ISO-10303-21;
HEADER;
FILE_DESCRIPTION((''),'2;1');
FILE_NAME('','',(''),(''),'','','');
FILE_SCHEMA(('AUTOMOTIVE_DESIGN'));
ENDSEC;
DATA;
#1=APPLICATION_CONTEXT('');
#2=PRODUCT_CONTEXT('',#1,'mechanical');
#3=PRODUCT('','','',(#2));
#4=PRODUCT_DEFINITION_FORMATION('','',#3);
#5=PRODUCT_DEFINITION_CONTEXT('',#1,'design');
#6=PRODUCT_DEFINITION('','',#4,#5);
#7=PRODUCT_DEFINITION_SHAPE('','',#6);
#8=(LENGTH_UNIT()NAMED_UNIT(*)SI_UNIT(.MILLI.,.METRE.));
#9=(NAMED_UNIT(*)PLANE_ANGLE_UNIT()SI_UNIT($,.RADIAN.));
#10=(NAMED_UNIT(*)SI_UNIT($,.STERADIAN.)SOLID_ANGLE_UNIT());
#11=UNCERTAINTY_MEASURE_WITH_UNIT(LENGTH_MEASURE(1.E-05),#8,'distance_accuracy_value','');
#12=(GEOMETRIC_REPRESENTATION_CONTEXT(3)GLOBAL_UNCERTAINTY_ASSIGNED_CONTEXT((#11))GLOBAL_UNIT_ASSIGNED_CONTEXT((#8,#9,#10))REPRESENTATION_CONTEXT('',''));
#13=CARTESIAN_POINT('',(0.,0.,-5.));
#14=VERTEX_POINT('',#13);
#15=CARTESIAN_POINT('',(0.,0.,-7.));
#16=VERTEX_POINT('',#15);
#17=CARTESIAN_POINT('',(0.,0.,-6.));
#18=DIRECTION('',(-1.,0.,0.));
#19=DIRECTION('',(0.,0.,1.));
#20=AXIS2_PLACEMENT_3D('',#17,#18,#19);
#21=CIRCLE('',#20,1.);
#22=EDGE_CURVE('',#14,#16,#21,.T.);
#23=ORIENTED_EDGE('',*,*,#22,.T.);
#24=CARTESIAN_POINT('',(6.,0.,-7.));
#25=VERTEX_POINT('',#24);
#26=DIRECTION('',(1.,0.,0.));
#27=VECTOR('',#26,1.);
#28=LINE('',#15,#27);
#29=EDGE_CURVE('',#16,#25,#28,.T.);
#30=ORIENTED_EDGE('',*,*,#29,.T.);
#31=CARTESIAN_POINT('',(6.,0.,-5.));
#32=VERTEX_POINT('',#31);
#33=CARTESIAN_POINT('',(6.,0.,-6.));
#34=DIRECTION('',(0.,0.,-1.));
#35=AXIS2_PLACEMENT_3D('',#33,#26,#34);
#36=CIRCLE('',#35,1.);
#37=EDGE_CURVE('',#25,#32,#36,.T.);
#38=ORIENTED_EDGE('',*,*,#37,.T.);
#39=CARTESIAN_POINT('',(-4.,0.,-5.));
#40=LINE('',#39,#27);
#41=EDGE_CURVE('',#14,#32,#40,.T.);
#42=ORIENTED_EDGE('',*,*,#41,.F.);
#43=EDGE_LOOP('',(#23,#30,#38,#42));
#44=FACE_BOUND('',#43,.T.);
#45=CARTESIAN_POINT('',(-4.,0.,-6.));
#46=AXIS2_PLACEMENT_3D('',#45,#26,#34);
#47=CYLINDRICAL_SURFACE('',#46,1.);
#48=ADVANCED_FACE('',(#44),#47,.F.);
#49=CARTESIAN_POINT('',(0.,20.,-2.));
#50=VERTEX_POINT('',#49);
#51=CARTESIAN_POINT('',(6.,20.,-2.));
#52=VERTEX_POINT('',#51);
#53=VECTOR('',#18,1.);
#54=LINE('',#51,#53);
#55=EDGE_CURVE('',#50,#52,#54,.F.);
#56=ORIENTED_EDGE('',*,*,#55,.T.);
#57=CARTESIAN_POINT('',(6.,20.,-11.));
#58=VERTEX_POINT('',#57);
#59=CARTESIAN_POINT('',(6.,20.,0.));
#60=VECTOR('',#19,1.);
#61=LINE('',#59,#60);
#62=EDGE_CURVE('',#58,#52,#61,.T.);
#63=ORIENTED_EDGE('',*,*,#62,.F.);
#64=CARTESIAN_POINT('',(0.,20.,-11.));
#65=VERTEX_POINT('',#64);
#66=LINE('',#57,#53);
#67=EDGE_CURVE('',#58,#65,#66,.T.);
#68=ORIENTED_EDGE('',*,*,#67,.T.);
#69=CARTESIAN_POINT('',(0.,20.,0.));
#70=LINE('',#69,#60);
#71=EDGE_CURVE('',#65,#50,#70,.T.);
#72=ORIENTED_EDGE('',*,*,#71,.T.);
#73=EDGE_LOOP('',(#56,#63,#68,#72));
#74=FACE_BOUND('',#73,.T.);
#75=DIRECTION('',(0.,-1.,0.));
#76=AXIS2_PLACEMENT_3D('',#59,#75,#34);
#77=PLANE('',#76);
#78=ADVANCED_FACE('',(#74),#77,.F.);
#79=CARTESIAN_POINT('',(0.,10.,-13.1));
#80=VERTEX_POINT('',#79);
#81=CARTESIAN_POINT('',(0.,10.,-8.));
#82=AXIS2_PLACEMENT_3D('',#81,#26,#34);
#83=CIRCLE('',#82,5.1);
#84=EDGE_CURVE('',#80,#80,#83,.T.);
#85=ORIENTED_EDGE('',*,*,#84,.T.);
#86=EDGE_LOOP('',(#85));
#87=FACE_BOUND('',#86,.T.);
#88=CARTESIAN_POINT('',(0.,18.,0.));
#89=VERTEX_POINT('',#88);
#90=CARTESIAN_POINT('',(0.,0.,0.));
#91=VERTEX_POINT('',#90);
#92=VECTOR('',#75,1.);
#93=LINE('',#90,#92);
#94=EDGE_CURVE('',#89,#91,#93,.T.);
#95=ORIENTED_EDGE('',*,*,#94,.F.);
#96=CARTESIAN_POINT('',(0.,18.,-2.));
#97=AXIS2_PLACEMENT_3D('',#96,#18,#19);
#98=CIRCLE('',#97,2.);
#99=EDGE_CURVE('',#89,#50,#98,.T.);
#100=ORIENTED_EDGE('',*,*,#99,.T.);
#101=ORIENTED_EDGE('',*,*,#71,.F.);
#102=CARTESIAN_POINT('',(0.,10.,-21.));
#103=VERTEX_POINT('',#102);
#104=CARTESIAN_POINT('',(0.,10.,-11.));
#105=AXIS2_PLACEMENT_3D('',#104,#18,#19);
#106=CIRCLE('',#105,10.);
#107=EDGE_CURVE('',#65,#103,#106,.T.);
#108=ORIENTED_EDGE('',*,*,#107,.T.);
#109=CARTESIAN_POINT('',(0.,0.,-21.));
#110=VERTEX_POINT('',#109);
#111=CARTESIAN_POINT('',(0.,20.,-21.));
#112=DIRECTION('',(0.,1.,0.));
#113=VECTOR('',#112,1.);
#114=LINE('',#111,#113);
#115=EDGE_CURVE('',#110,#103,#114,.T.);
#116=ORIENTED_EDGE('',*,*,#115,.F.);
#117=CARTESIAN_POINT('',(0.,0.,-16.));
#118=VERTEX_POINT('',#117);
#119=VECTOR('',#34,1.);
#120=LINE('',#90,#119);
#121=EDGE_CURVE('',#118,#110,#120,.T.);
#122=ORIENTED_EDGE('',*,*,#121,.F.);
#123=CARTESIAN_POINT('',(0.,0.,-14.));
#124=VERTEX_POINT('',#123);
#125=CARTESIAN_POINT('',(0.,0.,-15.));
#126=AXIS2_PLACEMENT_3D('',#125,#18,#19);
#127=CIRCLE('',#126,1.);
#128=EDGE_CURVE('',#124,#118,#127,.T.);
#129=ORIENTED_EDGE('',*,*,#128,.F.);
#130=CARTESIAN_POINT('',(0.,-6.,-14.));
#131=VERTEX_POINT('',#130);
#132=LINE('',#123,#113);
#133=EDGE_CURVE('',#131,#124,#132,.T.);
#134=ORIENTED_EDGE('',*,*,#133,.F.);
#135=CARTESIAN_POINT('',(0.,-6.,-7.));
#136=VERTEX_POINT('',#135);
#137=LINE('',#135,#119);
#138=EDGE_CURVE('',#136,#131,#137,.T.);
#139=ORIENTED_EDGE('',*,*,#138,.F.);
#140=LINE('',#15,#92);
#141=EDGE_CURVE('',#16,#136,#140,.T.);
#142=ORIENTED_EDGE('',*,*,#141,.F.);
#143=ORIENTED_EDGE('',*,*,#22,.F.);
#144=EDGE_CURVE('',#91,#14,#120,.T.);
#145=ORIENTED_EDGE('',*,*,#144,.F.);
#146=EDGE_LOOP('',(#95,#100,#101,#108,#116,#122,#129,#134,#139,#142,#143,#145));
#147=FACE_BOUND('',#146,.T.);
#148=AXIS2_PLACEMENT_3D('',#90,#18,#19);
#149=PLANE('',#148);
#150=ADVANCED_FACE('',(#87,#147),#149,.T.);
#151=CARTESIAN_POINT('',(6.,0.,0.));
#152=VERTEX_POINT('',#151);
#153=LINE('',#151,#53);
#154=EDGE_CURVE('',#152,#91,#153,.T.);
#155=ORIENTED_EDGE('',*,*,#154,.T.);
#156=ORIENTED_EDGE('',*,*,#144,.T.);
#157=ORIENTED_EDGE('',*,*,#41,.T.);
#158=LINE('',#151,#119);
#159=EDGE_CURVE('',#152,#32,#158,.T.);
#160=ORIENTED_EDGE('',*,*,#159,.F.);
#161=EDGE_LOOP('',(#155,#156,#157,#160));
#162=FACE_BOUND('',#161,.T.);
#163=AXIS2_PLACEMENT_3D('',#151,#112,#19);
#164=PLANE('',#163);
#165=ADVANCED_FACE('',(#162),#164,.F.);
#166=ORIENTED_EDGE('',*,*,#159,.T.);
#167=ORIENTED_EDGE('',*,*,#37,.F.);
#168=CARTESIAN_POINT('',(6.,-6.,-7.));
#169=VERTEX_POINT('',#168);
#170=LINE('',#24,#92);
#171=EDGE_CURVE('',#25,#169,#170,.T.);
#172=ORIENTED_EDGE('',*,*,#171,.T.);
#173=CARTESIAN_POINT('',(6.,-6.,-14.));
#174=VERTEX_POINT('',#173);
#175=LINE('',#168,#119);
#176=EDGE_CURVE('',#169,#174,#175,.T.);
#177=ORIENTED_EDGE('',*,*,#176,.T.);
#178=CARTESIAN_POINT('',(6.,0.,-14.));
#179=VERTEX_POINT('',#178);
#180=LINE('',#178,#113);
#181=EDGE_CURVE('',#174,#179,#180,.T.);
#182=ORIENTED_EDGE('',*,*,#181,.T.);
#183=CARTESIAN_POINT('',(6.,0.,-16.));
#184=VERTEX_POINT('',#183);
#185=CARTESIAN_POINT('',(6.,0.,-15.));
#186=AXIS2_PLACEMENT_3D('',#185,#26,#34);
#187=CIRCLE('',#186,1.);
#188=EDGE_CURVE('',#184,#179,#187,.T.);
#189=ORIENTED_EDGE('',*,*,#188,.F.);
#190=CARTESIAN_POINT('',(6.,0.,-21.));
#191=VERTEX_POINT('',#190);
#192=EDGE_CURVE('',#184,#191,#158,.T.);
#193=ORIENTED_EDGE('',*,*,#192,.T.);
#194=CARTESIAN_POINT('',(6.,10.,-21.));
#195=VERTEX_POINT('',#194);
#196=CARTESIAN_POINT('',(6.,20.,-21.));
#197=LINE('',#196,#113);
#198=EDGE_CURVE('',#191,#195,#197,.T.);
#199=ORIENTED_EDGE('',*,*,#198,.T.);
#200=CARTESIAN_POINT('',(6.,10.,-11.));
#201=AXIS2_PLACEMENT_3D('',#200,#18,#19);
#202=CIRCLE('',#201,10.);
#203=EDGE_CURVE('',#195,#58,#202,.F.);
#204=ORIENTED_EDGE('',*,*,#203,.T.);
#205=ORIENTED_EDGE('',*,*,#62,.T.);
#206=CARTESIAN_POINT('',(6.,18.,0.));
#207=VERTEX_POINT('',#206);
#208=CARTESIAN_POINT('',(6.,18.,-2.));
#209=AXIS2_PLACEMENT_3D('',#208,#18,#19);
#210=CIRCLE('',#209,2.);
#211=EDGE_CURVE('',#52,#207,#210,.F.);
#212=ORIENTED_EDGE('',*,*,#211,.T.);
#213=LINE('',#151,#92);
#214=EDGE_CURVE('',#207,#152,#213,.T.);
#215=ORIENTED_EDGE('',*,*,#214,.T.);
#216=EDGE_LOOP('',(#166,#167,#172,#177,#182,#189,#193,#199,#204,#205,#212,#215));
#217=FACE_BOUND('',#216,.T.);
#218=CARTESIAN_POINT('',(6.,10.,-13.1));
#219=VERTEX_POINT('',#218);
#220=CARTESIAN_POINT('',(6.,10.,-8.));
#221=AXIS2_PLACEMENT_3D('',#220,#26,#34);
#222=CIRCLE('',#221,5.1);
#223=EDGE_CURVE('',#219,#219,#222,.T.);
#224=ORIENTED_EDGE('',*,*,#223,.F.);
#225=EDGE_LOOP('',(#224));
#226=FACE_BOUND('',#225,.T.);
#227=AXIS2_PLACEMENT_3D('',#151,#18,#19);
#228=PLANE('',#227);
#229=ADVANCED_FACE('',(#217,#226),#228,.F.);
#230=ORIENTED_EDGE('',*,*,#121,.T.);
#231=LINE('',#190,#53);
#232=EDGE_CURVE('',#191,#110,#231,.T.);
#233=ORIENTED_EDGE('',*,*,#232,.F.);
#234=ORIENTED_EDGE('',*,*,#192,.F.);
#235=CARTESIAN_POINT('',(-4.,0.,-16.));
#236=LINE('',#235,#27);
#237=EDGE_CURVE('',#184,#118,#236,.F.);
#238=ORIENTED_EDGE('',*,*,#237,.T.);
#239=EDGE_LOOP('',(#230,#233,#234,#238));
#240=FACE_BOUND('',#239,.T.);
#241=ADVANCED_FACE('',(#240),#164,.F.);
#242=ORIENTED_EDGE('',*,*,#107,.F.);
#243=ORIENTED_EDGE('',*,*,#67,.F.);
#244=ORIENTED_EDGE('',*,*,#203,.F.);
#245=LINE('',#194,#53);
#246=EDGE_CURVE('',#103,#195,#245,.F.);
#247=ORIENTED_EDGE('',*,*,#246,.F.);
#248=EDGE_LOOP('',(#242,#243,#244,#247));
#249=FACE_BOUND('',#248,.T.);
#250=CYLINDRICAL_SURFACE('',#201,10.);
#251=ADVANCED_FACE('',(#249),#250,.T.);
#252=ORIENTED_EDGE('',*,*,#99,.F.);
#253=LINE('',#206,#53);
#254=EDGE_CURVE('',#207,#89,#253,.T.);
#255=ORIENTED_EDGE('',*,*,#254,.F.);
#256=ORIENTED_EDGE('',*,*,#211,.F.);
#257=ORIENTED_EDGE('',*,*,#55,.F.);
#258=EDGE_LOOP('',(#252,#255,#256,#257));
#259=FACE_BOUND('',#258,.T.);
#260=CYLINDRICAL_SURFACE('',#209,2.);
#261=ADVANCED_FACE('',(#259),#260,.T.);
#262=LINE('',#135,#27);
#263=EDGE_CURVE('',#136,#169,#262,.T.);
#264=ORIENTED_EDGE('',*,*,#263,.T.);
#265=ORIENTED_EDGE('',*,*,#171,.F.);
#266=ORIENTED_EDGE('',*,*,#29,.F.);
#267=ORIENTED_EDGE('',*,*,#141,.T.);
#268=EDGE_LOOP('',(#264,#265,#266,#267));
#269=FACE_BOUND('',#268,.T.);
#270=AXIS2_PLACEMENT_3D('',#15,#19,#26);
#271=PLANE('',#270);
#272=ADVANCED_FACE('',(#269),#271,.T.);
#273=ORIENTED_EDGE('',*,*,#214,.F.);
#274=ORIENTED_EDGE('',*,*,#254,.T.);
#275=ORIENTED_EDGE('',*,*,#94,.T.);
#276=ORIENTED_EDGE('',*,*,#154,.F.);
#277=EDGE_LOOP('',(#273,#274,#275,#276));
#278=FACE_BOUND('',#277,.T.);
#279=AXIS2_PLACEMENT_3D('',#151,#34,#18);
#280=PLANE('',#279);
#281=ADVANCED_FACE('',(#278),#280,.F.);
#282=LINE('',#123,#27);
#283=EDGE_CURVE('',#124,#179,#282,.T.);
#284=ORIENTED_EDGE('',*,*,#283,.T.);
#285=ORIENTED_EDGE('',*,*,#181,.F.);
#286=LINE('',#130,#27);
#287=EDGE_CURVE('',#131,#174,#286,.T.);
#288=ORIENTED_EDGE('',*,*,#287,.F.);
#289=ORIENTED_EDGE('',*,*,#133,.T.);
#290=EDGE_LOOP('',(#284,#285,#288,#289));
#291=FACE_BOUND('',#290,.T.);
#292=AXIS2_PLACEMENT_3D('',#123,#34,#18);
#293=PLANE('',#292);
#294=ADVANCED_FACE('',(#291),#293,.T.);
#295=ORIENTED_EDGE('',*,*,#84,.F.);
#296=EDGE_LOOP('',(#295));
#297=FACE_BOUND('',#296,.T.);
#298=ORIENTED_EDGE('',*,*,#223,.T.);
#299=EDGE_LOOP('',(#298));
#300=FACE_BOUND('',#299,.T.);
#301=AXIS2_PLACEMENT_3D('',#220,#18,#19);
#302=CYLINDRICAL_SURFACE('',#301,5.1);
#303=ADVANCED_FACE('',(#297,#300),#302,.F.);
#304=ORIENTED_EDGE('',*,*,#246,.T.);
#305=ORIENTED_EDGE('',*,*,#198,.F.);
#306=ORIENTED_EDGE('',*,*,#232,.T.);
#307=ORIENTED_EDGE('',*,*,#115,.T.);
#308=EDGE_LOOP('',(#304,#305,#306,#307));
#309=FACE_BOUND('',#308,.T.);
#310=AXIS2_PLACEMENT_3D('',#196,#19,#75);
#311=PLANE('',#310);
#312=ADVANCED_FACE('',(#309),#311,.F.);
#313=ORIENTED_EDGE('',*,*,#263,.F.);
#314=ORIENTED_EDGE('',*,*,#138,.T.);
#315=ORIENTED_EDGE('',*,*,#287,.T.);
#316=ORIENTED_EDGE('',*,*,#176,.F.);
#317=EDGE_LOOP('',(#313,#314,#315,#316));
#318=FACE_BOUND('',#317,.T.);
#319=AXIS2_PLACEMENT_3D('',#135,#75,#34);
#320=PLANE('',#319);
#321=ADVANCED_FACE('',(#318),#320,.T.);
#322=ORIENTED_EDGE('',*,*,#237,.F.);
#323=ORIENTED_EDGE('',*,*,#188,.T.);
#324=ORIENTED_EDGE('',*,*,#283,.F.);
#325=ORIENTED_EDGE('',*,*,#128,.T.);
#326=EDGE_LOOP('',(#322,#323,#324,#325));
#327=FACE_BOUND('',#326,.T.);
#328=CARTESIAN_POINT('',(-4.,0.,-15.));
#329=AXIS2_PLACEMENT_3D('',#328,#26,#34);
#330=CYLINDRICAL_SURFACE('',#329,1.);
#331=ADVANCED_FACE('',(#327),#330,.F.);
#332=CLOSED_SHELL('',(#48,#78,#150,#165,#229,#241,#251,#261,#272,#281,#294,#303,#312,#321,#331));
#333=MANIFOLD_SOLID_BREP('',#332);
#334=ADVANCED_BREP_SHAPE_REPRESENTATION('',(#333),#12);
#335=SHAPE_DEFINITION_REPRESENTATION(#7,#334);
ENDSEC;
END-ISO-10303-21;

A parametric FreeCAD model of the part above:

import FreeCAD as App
import Part
import Sketcher

V = App.Vector
Q = App.Units.Quantity


def edges_at(feature, points):
    """Names of the edges that pass closest to the given points."""
    edges = feature.Shape.Edges
    near = lambda p: min(range(len(edges)), key=lambda i: edges[i].distToShape(Part.Vertex(*p))[0])
    return sorted({f"Edge{near(p) + 1}" for p in points})

doc = App.newDocument("Part")
body = doc.addObject("PartDesign::Body", "Body")

# Sketch on YZ plane
sketch1 = body.newObject("Sketcher::SketchObject", "Sketch")
sketch1.AttachmentSupport = (doc.getObject("YZ_Plane"), [""])
sketch1.MapMode = "FlatFace"
sketch1.addGeometry(Part.LineSegment(V(20, 0, 0), V(0, 0, 0)), False)
sketch1.addGeometry(Part.LineSegment(V(0, 0, 0), V(0, -21, 0)), False)
sketch1.addGeometry(Part.LineSegment(V(0, -21, 0), V(20, -21, 0)), False)
sketch1.addGeometry(Part.LineSegment(V(20, -21, 0), V(20, 0, 0)), False)
sketch1.addGeometry(Part.Circle(V(10, -8, 0), V(0, 0, 1), 5.1), False)
sketch1.addConstraint(Sketcher.Constraint("Coincident", 0, 2, 1, 1))
sketch1.addConstraint(Sketcher.Constraint("Coincident", 1, 2, 2, 1))
sketch1.addConstraint(Sketcher.Constraint("Coincident", 2, 2, 3, 1))
sketch1.addConstraint(Sketcher.Constraint("Coincident", 3, 2, 0, 1))
sketch1.addConstraint(Sketcher.Constraint("Horizontal", 0))
sketch1.addConstraint(Sketcher.Constraint("Vertical", 1))
sketch1.addConstraint(Sketcher.Constraint("Horizontal", 2))
sketch1.addConstraint(Sketcher.Constraint("Vertical", 3))
sketch1.addConstraint(Sketcher.Constraint("Coincident", 0, 2, -1, 1))
sketch1.addConstraint(Sketcher.Constraint("Diameter", 4, Q("10.2 mm")))
sketch1.addConstraint(Sketcher.Constraint("DistanceX", 0, 2, 0, 1, Q("20 mm")))
sketch1.addConstraint(Sketcher.Constraint("DistanceY", 1, 2, 1, 1, Q("21 mm")))
sketch1.addConstraint(Sketcher.Constraint("DistanceX", -1, 1, 4, 3, Q("10 mm")))
sketch1.addConstraint(Sketcher.Constraint("DistanceY", 4, 3, -1, 1, Q("8 mm")))
pad1 = body.newObject("PartDesign::Pad", "Pad")
pad1.Profile = sketch1
pad1.Length = 6
doc.recompute()

fillet = body.newObject("PartDesign::Fillet", "Fillet")
fillet.Base = (pad1, edges_at(pad1, [(3, 20, -21)]))
fillet.Radius = 10
doc.recompute()

fillet2 = body.newObject("PartDesign::Fillet", "Fillet001")
fillet2.Base = (fillet, edges_at(fillet, [(3, 20, 0)]))
fillet2.Radius = 2

# Sketch on YZ plane
sketch2 = body.newObject("Sketcher::SketchObject", "Sketch001")
sketch2.AttachmentSupport = (doc.getObject("YZ_Plane"), [""])
sketch2.MapMode = "FlatFace"
sketch2.AttachmentOffset = App.Placement(V(0, 0, 6), App.Rotation())
sketch2.addGeometry(Part.LineSegment(V(0, -7, 0), V(-6, -7, 0)), False)
sketch2.addGeometry(Part.LineSegment(V(-6, -7, 0), V(-6, -14, 0)), False)
sketch2.addGeometry(Part.LineSegment(V(-6, -14, 0), V(0, -14, 0)), False)
sketch2.addGeometry(Part.LineSegment(V(0, -14, 0), V(0, -7, 0)), False)
sketch2.addConstraint(Sketcher.Constraint("Coincident", 0, 2, 1, 1))
sketch2.addConstraint(Sketcher.Constraint("Coincident", 1, 2, 2, 1))
sketch2.addConstraint(Sketcher.Constraint("Coincident", 2, 2, 3, 1))
sketch2.addConstraint(Sketcher.Constraint("Coincident", 3, 2, 0, 1))
sketch2.addConstraint(Sketcher.Constraint("Horizontal", 0))
sketch2.addConstraint(Sketcher.Constraint("Vertical", 1))
sketch2.addConstraint(Sketcher.Constraint("Horizontal", 2))
sketch2.addConstraint(Sketcher.Constraint("Vertical", 3))
sketch2.addConstraint(Sketcher.Constraint("PointOnObject", 2, 2, -2))
sketch2.addConstraint(Sketcher.Constraint("DistanceX", 0, 2, 0, 1, Q("6 mm")))
sketch2.addConstraint(Sketcher.Constraint("DistanceY", 1, 2, 1, 1, Q("7 mm")))
sketch2.addConstraint(Sketcher.Constraint("DistanceY", 0, 2, -1, 1, Q("7 mm")))
pad2 = body.newObject("PartDesign::Pad", "Pad001")
pad2.Profile = sketch2
pad2.Length = 6
pad2.Reversed = True

# Sketch on YZ plane
sketch3 = body.newObject("Sketcher::SketchObject", "Sketch002")
sketch3.AttachmentSupport = (doc.getObject("YZ_Plane"), [""])
sketch3.MapMode = "FlatFace"
sketch3.AttachmentOffset = App.Placement(V(0, 0, 6), App.Rotation())
sketch3.addGeometry(Part.Circle(V(0, -15, 0), V(0, 0, 1), 1), False)
sketch3.addGeometry(Part.Circle(V(0, -6, 0), V(0, 0, 1), 1), False)
sketch3.addConstraint(Sketcher.Constraint("Equal", 0, 1))
sketch3.addConstraint(Sketcher.Constraint("PointOnObject", 0, 3, -2))
sketch3.addConstraint(Sketcher.Constraint("PointOnObject", 1, 3, -2))
sketch3.addConstraint(Sketcher.Constraint("Diameter", 0, Q("2 mm")))
sketch3.addConstraint(Sketcher.Constraint("DistanceY", 0, 3, -1, 1, Q("15 mm")))
sketch3.addConstraint(Sketcher.Constraint("DistanceY", 1, 3, -1, 1, Q("6 mm")))
pocket1 = body.newObject("PartDesign::Pocket", "Pocket")
pocket1.Profile = sketch3
pocket1.Length = 10

doc.recompute()
